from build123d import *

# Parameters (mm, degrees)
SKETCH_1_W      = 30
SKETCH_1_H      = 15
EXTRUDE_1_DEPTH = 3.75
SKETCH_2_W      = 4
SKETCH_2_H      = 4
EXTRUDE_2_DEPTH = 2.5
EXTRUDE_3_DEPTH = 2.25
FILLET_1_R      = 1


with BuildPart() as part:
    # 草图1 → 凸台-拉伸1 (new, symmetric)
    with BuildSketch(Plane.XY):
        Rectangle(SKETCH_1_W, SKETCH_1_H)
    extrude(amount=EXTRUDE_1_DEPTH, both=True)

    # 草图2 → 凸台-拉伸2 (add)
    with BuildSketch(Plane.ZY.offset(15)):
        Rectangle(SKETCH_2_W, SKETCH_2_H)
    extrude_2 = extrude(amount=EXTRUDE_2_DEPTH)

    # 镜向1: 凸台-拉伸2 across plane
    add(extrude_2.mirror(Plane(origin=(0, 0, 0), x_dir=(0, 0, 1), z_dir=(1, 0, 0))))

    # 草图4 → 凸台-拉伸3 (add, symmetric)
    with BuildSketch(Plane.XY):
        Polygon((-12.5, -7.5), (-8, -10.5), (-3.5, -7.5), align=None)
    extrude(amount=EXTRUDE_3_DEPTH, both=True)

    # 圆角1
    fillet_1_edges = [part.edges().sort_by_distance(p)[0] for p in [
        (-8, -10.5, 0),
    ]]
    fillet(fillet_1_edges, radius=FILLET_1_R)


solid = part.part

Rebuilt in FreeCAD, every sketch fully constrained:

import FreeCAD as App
import Part
import Sketcher
from FreeCAD import Vector
Q = App.Units.Quantity


def edges_at(feature, points):
    """Names of the edges that pass closest to the given points."""
    edges = feature.Shape.Edges
    near = lambda p: min(range(len(edges)), key=lambda i: edges[i].distToShape(Part.Vertex(*p))[0])
    return sorted({f"Edge{near(p) + 1}" for p in points})


def add_polygon(sketch, points):
    """Adds a closed chain of lines whose ends are joined by coincident constraints."""
    first, n = sketch.GeometryCount, len(points)
    for a, b in zip(points, points[1:] + points[:1]):
        sketch.addGeometry(Part.LineSegment(App.Vector(*a, 0), App.Vector(*b, 0)), False)
    for i in range(n):
        sketch.addConstraint(Sketcher.Constraint("Coincident", first + i, 2, first + (i + 1) % n, 1))

doc = App.newDocument("Part")
body = doc.addObject("PartDesign::Body", "Body")

sketch1 = body.newObject("Sketcher::SketchObject", "Sketch")
sketch1.AttachmentSupport = (doc.getObject("XY_Plane"), [""])
sketch1.MapMode = "FlatFace"
add_polygon(sketch1, [(-15, 8), (-15, -8), (15, -8), (15, 8)])
sketch1.addConstraint(Sketcher.Constraint("Vertical", 0))
sketch1.addConstraint(Sketcher.Constraint("Horizontal", 1))
sketch1.addConstraint(Sketcher.Constraint("Vertical", 2))
sketch1.addConstraint(Sketcher.Constraint("Horizontal", 3))
sketch1.addConstraint(Sketcher.Constraint("Symmetric", 0, 2, 2, 2, -1, 1))
sketch1.addConstraint(Sketcher.Constraint("DistanceX", 1, 1, 1, 2, Q("30 mm")))
sketch1.addConstraint(Sketcher.Constraint("DistanceY", 0, 2, 0, 1, Q("15 mm")))
pad1 = body.newObject("PartDesign::Pad", "Pad")
pad1.Profile = sketch1
pad1.Length = 7.5
pad1.Midplane = True

sketch2 = body.newObject("Sketcher::SketchObject", "Sketch001")
sketch2.AttachmentSupport = (doc.getObject("YZ_Plane"), [""])
sketch2.MapMode = "FlatFace"
sketch2.AttachmentOffset = App.Placement(Vector(0, 0, -15), App.Rotation())
add_polygon(sketch2, [(2, -2), (-2, -2), (-2, 2), (2, 2)])
sketch2.addConstraint(Sketcher.Constraint("Horizontal", 0))
sketch2.addConstraint(Sketcher.Constraint("Vertical", 1))
sketch2.addConstraint(Sketcher.Constraint("Horizontal", 2))
sketch2.addConstraint(Sketcher.Constraint("Vertical", 3))
sketch2.addConstraint(Sketcher.Constraint("Symmetric", 0, 2, 2, 2, -1, 1))
sketch2.addConstraint(Sketcher.Constraint("Equal", 2, 1))
sketch2.addConstraint(Sketcher.Constraint("DistanceX", 0, 2, 0, 1, Q("4 mm")))
pad2 = body.newObject("PartDesign::Pad", "Pad001")
pad2.Profile = sketch2
pad2.Length = 2.5
pad2.Reversed = True
doc.recompute()

mirrored = body.newObject("PartDesign::Mirrored", "Mirrored")
mirrored.Originals = [pad2]
mirrored.MirrorPlane = (doc.getObject("YZ_Plane"), [""])
body.Tip = mirrored

sketch3 = body.newObject("Sketcher::SketchObject", "Sketch002")
sketch3.AttachmentSupport = (doc.getObject("XY_Plane"), [""])
sketch3.MapMode = "FlatFace"
add_polygon(sketch3, [(-12, -8), (-8, -10), (-4, -8)])
sketch3.addConstraint(Sketcher.Constraint("Horizontal", 2))
sketch3.addConstraint(Sketcher.Constraint("Equal", 0, 1))
sketch3.addConstraint(Sketcher.Constraint("DistanceX", 2, 2, 2, 1, Q("9 mm")))
sketch3.addConstraint(Sketcher.Constraint("DistanceX", 0, 2, -1, 1, Q("8 mm")))
sketch3.addConstraint(Sketcher.Constraint("DistanceY", 0, 2, 1, 2, Q("3 mm")))
sketch3.addConstraint(Sketcher.Constraint("DistanceY", 0, 2, -1, 1, Q("10.5 mm")))
pad3 = body.newObject("PartDesign::Pad", "Pad002")
pad3.Profile = sketch3
pad3.Length = 4.5
pad3.Midplane = True
doc.recompute()

fillet = body.newObject("PartDesign::Fillet", "Fillet")
fillet.Base = (pad3, edges_at(pad3, [(-8, -10.5, 0)]))
fillet.Radius = 1

doc.recompute()
